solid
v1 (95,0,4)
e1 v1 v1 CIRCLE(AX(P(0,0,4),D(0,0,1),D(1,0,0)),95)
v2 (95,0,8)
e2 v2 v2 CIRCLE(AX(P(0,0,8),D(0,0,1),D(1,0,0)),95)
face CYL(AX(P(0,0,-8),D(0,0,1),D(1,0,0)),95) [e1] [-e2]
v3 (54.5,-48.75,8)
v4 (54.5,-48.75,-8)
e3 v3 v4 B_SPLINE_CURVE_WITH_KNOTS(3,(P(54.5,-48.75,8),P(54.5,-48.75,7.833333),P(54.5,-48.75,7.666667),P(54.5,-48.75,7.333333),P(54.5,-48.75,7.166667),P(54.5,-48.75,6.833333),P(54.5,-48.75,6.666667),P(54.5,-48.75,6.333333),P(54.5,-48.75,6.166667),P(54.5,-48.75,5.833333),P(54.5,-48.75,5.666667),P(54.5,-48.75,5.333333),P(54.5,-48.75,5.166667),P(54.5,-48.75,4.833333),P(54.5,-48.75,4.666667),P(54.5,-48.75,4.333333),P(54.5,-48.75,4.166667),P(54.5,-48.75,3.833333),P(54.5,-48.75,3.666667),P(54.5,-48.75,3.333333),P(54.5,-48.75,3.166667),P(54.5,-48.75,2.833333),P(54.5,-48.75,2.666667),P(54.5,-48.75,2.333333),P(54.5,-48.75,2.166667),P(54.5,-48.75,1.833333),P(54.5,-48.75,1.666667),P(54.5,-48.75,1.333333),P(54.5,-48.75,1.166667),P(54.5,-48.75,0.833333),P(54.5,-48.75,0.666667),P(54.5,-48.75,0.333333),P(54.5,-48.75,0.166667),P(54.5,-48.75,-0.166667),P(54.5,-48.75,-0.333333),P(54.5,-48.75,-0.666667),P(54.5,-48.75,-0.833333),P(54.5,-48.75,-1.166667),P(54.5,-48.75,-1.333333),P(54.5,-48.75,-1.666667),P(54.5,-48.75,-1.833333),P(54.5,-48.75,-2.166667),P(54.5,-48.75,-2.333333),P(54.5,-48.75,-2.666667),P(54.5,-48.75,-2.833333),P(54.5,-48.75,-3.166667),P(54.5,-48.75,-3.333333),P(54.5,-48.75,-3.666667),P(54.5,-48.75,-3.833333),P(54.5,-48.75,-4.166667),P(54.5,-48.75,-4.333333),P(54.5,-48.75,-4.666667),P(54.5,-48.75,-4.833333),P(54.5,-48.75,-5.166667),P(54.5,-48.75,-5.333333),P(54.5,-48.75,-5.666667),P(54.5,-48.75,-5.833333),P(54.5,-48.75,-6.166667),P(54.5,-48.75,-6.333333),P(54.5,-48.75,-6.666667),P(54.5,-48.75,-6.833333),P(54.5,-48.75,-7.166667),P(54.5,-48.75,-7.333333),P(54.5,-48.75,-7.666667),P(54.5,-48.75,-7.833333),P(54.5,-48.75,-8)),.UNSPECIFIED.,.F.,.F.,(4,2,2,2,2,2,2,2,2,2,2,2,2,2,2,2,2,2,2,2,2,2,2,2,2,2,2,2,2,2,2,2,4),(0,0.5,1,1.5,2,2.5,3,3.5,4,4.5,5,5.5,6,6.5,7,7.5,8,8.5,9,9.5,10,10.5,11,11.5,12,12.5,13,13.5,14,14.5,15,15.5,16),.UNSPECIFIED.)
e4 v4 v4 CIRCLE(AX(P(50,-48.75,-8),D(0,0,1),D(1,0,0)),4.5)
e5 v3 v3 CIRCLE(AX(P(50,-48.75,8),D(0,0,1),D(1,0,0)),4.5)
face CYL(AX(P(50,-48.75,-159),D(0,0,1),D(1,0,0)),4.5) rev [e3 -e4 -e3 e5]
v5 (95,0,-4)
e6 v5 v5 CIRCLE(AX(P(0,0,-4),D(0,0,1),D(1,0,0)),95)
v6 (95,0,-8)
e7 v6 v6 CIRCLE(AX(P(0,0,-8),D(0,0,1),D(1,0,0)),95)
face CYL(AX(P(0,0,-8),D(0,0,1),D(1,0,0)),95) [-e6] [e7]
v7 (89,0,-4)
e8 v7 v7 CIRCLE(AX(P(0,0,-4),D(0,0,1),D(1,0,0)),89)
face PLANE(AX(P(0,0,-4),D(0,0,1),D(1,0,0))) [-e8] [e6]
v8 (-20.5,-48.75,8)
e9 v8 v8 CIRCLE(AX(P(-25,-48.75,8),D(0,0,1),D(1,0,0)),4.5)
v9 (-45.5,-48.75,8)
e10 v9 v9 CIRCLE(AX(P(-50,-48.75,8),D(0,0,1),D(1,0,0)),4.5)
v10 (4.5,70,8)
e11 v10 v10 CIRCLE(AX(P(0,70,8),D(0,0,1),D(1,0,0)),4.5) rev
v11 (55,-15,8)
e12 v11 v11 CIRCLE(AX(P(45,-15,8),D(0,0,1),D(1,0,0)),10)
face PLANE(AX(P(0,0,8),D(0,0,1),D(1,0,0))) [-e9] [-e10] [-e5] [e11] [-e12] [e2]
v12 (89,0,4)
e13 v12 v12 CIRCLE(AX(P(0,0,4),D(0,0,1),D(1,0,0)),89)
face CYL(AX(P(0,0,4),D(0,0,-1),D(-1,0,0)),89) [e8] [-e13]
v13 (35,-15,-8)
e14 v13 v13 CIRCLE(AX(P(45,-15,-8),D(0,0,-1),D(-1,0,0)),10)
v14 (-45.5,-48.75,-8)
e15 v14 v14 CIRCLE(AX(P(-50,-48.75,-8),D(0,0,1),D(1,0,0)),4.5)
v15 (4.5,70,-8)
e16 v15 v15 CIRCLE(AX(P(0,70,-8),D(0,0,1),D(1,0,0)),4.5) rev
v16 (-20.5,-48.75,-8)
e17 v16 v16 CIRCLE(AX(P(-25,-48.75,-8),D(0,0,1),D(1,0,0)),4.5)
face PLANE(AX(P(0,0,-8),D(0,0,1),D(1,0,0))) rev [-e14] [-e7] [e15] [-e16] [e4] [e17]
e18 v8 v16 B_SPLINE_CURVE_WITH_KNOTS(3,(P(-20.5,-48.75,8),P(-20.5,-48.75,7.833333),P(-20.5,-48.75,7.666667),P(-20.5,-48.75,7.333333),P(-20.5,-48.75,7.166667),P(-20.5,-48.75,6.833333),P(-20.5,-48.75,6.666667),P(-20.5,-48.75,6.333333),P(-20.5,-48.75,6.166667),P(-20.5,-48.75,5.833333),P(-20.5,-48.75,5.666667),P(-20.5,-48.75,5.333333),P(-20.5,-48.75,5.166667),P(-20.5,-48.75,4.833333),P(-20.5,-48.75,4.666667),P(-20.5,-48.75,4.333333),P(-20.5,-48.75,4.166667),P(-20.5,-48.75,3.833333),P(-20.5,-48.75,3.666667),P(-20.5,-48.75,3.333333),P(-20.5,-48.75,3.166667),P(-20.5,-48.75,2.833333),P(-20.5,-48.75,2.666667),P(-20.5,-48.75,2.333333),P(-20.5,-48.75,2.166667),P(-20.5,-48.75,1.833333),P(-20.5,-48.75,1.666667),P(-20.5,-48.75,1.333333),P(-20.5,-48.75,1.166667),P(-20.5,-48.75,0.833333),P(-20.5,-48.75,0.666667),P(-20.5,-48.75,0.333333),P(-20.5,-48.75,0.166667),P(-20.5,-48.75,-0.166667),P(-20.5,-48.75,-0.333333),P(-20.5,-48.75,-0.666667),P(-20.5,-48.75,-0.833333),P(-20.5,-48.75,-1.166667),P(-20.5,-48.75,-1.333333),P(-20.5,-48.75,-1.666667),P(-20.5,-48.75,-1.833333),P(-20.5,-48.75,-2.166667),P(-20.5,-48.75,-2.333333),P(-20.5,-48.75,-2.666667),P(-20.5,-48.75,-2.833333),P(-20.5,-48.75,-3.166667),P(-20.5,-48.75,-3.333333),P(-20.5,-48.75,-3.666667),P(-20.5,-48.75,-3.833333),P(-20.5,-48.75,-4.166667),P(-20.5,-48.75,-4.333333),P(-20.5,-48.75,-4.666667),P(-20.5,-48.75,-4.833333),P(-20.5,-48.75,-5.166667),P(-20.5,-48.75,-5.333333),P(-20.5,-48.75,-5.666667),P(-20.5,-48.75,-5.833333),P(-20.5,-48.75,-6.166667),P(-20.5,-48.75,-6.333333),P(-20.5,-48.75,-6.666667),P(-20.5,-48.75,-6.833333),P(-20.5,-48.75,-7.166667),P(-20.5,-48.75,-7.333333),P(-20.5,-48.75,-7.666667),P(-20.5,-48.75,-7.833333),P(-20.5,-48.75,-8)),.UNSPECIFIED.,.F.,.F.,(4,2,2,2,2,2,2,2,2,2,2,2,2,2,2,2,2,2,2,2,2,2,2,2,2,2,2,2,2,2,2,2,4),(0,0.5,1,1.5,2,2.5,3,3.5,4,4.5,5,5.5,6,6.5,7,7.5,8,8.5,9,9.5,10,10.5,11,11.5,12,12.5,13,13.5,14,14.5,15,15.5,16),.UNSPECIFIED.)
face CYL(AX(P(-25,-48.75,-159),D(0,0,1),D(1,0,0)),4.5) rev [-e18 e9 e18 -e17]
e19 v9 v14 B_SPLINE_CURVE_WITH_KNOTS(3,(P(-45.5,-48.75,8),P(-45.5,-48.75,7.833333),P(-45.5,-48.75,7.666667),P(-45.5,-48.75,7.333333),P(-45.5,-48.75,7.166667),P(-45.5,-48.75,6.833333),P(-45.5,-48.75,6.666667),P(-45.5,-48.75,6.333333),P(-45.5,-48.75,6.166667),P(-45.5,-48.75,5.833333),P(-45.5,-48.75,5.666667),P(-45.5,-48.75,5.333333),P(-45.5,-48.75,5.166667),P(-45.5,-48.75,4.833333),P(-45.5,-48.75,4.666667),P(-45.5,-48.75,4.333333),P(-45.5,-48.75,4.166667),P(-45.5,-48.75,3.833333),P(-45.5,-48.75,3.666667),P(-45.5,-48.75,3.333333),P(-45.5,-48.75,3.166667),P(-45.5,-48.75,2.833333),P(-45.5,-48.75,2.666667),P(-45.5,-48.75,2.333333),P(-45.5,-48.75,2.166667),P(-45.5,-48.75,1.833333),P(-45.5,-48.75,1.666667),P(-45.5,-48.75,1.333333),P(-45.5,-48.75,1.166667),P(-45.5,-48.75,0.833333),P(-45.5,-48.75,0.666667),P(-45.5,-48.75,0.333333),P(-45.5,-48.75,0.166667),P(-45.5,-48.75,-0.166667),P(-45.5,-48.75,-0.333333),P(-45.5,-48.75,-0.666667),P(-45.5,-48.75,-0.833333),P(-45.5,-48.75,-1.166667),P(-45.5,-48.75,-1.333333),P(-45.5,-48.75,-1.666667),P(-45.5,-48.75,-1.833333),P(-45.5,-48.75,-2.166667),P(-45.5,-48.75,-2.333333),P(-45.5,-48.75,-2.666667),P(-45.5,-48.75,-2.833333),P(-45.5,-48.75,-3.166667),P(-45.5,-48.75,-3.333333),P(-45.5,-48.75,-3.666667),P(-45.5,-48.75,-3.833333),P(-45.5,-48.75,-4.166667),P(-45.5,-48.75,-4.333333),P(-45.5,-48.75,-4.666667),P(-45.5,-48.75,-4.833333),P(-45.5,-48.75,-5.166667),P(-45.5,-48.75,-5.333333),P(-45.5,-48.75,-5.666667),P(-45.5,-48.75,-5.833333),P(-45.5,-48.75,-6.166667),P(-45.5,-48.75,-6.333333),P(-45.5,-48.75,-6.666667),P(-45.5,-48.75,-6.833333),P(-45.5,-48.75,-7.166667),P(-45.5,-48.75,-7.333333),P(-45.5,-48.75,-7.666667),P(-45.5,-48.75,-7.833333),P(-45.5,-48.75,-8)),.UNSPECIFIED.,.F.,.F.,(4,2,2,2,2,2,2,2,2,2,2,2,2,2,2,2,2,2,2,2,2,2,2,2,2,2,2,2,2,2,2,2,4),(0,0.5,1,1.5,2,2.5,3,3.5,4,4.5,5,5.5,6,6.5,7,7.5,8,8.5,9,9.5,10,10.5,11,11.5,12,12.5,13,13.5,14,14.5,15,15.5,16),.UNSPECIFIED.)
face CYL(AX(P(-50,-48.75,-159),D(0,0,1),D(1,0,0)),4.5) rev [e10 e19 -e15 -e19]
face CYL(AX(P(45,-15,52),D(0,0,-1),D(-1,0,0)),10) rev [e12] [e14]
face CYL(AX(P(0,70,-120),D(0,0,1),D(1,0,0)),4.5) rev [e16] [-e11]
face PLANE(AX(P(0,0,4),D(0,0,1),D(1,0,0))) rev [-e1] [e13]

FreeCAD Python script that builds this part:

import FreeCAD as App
import Part
import Sketcher
Q = App.Units.Quantity

doc = App.newDocument("Part")
body = doc.addObject("PartDesign::Body", "Body")

# Sketch on XY plane
sketch1 = body.newObject("Sketcher::SketchObject", "Sketch")
sketch1.AttachmentSupport = (doc.getObject("XY_Plane"), [""])
sketch1.MapMode = "FlatFace"
sketch1.addGeometry(Part.Circle(App.Vector(0, 0, 0), App.Vector(0, 0, 1), 95), False)
sketch1.addConstraint(Sketcher.Constraint("Coincident", 0, 3, -1, 1))
sketch1.addConstraint(Sketcher.Constraint("Diameter", 0, Q("190 mm")))
pad1 = body.newObject("PartDesign::Pad", "Pad")
pad1.Profile = sketch1
pad1.Type = "TwoLengths"
pad1.Length = 8
pad1.Length2 = 8

# Sketch on XY plane
sketch2 = body.newObject("Sketcher::SketchObject", "Sketch001")
sketch2.AttachmentSupport = (doc.getObject("XY_Plane"), [""])
sketch2.MapMode = "FlatFace"
sketch2.addGeometry(Part.Circle(App.Vector(0, 0, 0), App.Vector(0, 0, 1), 95), False)
sketch2.addGeometry(Part.Circle(App.Vector(0, 0, 0), App.Vector(0, 0, 1), 89), False)
sketch2.addConstraint(Sketcher.Constraint("Coincident", 0, 3, -1, 1))
sketch2.addConstraint(Sketcher.Constraint("Coincident", 1, 3, -1, 1))
sketch2.addConstraint(Sketcher.Constraint("Diameter", 0, Q("190 mm")))
sketch2.addConstraint(Sketcher.Constraint("Diameter", 1, Q("178 mm")))
pocket1 = body.newObject("PartDesign::Pocket", "Pocket")
pocket1.Profile = sketch2
pocket1.Type = "TwoLengths"
pocket1.Length = 4
pocket1.Length2 = 4
pocket1.Reversed = True

# Sketch on XY plane
sketch3 = body.newObject("Sketcher::SketchObject", "Sketch002")
sketch3.AttachmentSupport = (doc.getObject("XY_Plane"), [""])
sketch3.MapMode = "FlatFace"
sketch3.AttachmentOffset = App.Placement(App.Vector(0, 0, 8), App.Rotation())
sketch3.addGeometry(Part.Circle(App.Vector(-50, -48.8, 0), App.Vector(0, 0, 1), 4.5), False)
sketch3.addGeometry(Part.Circle(App.Vector(50, -48.8, 0), App.Vector(0, 0, 1), 4.5), False)
sketch3.addGeometry(Part.Circle(App.Vector(-25, -48.8, 0), App.Vector(0, 0, 1), 4.5), False)
sketch3.addConstraint(Sketcher.Constraint("Equal", 0, 1))
sketch3.addConstraint(Sketcher.Constraint("Equal", 1, 2))
sketch3.addConstraint(Sketcher.Constraint("Symmetric", 0, 3, 1, 3, -2))
sketch3.addConstraint(Sketcher.Constraint("Horizontal", 1, 3, 2, 3))
sketch3.addConstraint(Sketcher.Constraint("Diameter", 0, Q("9 mm")))
sketch3.addConstraint(Sketcher.Constraint("DistanceX", 0, 3, -1, 1, Q("50 mm")))
sketch3.addConstraint(Sketcher.Constraint("DistanceX", 2, 3, -1, 1, Q("25 mm")))
sketch3.addConstraint(Sketcher.Constraint("DistanceY", 0, 3, -1, 1, Q("48.75 mm")))
pocket2 = body.newObject("PartDesign::Pocket", "Pocket001")
pocket2.Profile = sketch3
pocket2.Length = 167

# Sketch on XY plane
sketch4 = body.newObject("Sketcher::SketchObject", "Sketch003")
sketch4.AttachmentSupport = (doc.getObject("XY_Plane"), [""])
sketch4.MapMode = "FlatFace"
sketch4.AttachmentOffset = App.Placement(App.Vector(0, 0, -8), App.Rotation())
sketch4.addGeometry(Part.Circle(App.Vector(0, 70, 0), App.Vector(0, 0, 1), 4.5), False)
sketch4.addConstraint(Sketcher.Constraint("PointOnObject", 0, 3, -2))
sketch4.addConstraint(Sketcher.Constraint("Diameter", 0, Q("9 mm")))
sketch4.addConstraint(Sketcher.Constraint("DistanceY", -1, 1, 0, 3, Q("70 mm")))
pocket3 = body.newObject("PartDesign::Pocket", "Pocket002")
pocket3.Profile = sketch4
pocket3.Type = "ThroughAll"
pocket3.Midplane = True

# Sketch on XY plane
sketch5 = body.newObject("Sketcher::SketchObject", "Sketch004")
sketch5.AttachmentSupport = (doc.getObject("XY_Plane"), [""])
sketch5.MapMode = "FlatFace"
sketch5.AttachmentOffset = App.Placement(App.Vector(0, 0, -8), App.Rotation())
sketch5.addGeometry(Part.Circle(App.Vector(45, -15, 0), App.Vector(0, 0, 1), 10), False)
sketch5.addConstraint(Sketcher.Constraint("Diameter", 0, Q("20 mm")))
sketch5.addConstraint(Sketcher.Constraint("DistanceX", -1, 1, 0, 3, Q("45 mm")))
sketch5.addConstraint(Sketcher.Constraint("DistanceY", 0, 3, -1, 1, Q("15 mm")))
pocket4 = body.newObject("PartDesign::Pocket", "Pocket003")
pocket4.Profile = sketch5
pocket4.Length = 60
pocket4.Reversed = True

doc.recompute()
